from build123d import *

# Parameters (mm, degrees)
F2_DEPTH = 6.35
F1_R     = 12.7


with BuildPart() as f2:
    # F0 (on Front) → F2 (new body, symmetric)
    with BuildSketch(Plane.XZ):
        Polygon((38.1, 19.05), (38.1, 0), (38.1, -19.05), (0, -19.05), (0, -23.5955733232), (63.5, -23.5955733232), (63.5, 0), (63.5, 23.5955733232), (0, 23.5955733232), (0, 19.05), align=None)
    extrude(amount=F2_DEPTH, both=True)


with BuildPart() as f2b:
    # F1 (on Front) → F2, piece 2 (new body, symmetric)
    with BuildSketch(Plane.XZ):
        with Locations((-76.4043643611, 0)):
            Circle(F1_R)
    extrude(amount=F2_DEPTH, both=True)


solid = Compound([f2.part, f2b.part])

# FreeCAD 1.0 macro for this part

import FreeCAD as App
import Part
import Sketcher
from FreeCAD import Vector
Q = App.Units.Quantity

doc = App.newDocument("Part")
params = doc.addObject("Spreadsheet::Sheet", "Params")
for row, (alias, value) in enumerate([
    ("sketch1_width", "1.5 in"),
    ("sketch1_width2", "2.5 in"),
    ("pad1_length", "0.5 in"),
    ("sketch2_diameter", "1 in"),
    ("pad2_length", "0.5 in"),
], start=1):
    params.set(f"A{row}", alias)
    params.set(f"B{row}", "=" + value)
    params.setAlias(f"B{row}", alias)

body = doc.addObject("PartDesign::Body", "Body")

sketch1 = doc.addObject("Sketcher::SketchObject", "Sketch")
body.addObject(sketch1)
sketch1.AttachmentSupport = (doc.XZ_Plane, [""])
sketch1.MapMode = "FlatFace"
sketch1.addGeometry(Part.LineSegment(Vector(38.1, 19.1, 0), Vector(38.1, -19.1, 0)), False)
sketch1.addGeometry(Part.LineSegment(Vector(38.1, -19.1, 0), Vector(0, -19.1, 0)), False)
sketch1.addGeometry(Part.LineSegment(Vector(0, -19.1, 0), Vector(0, -23.6, 0)), False)
sketch1.addGeometry(Part.LineSegment(Vector(0, -23.6, 0), Vector(63.5, -23.6, 0)), False)
sketch1.addGeometry(Part.LineSegment(Vector(63.5, -23.6, 0), Vector(63.5, 23.6, 0)), False)
sketch1.addGeometry(Part.LineSegment(Vector(63.5, 23.6, 0), Vector(0, 23.6, 0)), False)
sketch1.addGeometry(Part.LineSegment(Vector(0, 23.6, 0), Vector(0, 19.1, 0)), False)
sketch1.addGeometry(Part.LineSegment(Vector(0, 19.1, 0), Vector(38.1, 19.1, 0)), False)
sketch1.addConstraint(Sketcher.Constraint("Coincident", 0, 2, 1, 1))
sketch1.addConstraint(Sketcher.Constraint("Coincident", 1, 2, 2, 1))
sketch1.addConstraint(Sketcher.Constraint("Coincident", 2, 2, 3, 1))
sketch1.addConstraint(Sketcher.Constraint("Coincident", 3, 2, 4, 1))
sketch1.addConstraint(Sketcher.Constraint("Coincident", 4, 2, 5, 1))
sketch1.addConstraint(Sketcher.Constraint("Coincident", 5, 2, 6, 1))
sketch1.addConstraint(Sketcher.Constraint("Coincident", 6, 2, 7, 1))
sketch1.addConstraint(Sketcher.Constraint("Coincident", 7, 2, 0, 1))
sketch1.addConstraint(Sketcher.Constraint("Vertical", 0))
sketch1.addConstraint(Sketcher.Constraint("Horizontal", 1))
sketch1.addConstraint(Sketcher.Constraint("Vertical", 2))
sketch1.addConstraint(Sketcher.Constraint("Horizontal", 3))
sketch1.addConstraint(Sketcher.Constraint("Vertical", 4))
sketch1.addConstraint(Sketcher.Constraint("Horizontal", 5))
sketch1.addConstraint(Sketcher.Constraint("Vertical", 6))
sketch1.addConstraint(Sketcher.Constraint("Horizontal", 7))
sketch1.addConstraint(Sketcher.Constraint("Symmetric", 2, 2, 5, 2, -1, 1))
sketch1.addConstraint(Sketcher.Constraint("Symmetric", 1, 2, 6, 2, -1))
sketch1.addConstraint(Sketcher.Constraint("Equal", 7, 0))
sketch1.addConstraint(Sketcher.Constraint("DistanceX", 1, 2, 1, 1, Q("1.5 in")))
sketch1.addConstraint(Sketcher.Constraint("DistanceX", 3, 1, 3, 2, Q("2.5 in")))
sketch1.addConstraint(Sketcher.Constraint("DistanceY", 2, 2, 2, 1, 4.545573))
sketch1.setExpression("Constraints[19]", "Params.sketch1_width")
sketch1.setExpression("Constraints[20]", "Params.sketch1_width2")
pad1 = doc.addObject("PartDesign::Pad", "Pad")
body.addObject(pad1)
pad1.Profile = sketch1
pad1.setExpression("Length", "Params.pad1_length")
pad1.Midplane = True
body2 = doc.addObject("PartDesign::Body", "Body001")

sketch2 = doc.addObject("Sketcher::SketchObject", "Sketch001")
body2.addObject(sketch2)
sketch2.AttachmentSupport = (doc.getObject("XZ_Plane001"), [""])
sketch2.MapMode = "FlatFace"
sketch2.addGeometry(Part.Circle(Vector(-76, 0, 0), Vector(0, 0, 1), 13), False)
sketch2.addConstraint(Sketcher.Constraint("PointOnObject", 0, 3, -1))
sketch2.addConstraint(Sketcher.Constraint("Diameter", 0, Q("1 in")))
sketch2.addConstraint(Sketcher.Constraint("DistanceX", 0, 3, -1, 1, 76.404364))
sketch2.setExpression("Constraints[1]", "Params.sketch2_diameter")
pad2 = doc.addObject("PartDesign::Pad", "Pad001")
body2.addObject(pad2)
pad2.Profile = sketch2
pad2.setExpression("Length", "Params.pad2_length")
pad2.Midplane = True

doc.recompute()
